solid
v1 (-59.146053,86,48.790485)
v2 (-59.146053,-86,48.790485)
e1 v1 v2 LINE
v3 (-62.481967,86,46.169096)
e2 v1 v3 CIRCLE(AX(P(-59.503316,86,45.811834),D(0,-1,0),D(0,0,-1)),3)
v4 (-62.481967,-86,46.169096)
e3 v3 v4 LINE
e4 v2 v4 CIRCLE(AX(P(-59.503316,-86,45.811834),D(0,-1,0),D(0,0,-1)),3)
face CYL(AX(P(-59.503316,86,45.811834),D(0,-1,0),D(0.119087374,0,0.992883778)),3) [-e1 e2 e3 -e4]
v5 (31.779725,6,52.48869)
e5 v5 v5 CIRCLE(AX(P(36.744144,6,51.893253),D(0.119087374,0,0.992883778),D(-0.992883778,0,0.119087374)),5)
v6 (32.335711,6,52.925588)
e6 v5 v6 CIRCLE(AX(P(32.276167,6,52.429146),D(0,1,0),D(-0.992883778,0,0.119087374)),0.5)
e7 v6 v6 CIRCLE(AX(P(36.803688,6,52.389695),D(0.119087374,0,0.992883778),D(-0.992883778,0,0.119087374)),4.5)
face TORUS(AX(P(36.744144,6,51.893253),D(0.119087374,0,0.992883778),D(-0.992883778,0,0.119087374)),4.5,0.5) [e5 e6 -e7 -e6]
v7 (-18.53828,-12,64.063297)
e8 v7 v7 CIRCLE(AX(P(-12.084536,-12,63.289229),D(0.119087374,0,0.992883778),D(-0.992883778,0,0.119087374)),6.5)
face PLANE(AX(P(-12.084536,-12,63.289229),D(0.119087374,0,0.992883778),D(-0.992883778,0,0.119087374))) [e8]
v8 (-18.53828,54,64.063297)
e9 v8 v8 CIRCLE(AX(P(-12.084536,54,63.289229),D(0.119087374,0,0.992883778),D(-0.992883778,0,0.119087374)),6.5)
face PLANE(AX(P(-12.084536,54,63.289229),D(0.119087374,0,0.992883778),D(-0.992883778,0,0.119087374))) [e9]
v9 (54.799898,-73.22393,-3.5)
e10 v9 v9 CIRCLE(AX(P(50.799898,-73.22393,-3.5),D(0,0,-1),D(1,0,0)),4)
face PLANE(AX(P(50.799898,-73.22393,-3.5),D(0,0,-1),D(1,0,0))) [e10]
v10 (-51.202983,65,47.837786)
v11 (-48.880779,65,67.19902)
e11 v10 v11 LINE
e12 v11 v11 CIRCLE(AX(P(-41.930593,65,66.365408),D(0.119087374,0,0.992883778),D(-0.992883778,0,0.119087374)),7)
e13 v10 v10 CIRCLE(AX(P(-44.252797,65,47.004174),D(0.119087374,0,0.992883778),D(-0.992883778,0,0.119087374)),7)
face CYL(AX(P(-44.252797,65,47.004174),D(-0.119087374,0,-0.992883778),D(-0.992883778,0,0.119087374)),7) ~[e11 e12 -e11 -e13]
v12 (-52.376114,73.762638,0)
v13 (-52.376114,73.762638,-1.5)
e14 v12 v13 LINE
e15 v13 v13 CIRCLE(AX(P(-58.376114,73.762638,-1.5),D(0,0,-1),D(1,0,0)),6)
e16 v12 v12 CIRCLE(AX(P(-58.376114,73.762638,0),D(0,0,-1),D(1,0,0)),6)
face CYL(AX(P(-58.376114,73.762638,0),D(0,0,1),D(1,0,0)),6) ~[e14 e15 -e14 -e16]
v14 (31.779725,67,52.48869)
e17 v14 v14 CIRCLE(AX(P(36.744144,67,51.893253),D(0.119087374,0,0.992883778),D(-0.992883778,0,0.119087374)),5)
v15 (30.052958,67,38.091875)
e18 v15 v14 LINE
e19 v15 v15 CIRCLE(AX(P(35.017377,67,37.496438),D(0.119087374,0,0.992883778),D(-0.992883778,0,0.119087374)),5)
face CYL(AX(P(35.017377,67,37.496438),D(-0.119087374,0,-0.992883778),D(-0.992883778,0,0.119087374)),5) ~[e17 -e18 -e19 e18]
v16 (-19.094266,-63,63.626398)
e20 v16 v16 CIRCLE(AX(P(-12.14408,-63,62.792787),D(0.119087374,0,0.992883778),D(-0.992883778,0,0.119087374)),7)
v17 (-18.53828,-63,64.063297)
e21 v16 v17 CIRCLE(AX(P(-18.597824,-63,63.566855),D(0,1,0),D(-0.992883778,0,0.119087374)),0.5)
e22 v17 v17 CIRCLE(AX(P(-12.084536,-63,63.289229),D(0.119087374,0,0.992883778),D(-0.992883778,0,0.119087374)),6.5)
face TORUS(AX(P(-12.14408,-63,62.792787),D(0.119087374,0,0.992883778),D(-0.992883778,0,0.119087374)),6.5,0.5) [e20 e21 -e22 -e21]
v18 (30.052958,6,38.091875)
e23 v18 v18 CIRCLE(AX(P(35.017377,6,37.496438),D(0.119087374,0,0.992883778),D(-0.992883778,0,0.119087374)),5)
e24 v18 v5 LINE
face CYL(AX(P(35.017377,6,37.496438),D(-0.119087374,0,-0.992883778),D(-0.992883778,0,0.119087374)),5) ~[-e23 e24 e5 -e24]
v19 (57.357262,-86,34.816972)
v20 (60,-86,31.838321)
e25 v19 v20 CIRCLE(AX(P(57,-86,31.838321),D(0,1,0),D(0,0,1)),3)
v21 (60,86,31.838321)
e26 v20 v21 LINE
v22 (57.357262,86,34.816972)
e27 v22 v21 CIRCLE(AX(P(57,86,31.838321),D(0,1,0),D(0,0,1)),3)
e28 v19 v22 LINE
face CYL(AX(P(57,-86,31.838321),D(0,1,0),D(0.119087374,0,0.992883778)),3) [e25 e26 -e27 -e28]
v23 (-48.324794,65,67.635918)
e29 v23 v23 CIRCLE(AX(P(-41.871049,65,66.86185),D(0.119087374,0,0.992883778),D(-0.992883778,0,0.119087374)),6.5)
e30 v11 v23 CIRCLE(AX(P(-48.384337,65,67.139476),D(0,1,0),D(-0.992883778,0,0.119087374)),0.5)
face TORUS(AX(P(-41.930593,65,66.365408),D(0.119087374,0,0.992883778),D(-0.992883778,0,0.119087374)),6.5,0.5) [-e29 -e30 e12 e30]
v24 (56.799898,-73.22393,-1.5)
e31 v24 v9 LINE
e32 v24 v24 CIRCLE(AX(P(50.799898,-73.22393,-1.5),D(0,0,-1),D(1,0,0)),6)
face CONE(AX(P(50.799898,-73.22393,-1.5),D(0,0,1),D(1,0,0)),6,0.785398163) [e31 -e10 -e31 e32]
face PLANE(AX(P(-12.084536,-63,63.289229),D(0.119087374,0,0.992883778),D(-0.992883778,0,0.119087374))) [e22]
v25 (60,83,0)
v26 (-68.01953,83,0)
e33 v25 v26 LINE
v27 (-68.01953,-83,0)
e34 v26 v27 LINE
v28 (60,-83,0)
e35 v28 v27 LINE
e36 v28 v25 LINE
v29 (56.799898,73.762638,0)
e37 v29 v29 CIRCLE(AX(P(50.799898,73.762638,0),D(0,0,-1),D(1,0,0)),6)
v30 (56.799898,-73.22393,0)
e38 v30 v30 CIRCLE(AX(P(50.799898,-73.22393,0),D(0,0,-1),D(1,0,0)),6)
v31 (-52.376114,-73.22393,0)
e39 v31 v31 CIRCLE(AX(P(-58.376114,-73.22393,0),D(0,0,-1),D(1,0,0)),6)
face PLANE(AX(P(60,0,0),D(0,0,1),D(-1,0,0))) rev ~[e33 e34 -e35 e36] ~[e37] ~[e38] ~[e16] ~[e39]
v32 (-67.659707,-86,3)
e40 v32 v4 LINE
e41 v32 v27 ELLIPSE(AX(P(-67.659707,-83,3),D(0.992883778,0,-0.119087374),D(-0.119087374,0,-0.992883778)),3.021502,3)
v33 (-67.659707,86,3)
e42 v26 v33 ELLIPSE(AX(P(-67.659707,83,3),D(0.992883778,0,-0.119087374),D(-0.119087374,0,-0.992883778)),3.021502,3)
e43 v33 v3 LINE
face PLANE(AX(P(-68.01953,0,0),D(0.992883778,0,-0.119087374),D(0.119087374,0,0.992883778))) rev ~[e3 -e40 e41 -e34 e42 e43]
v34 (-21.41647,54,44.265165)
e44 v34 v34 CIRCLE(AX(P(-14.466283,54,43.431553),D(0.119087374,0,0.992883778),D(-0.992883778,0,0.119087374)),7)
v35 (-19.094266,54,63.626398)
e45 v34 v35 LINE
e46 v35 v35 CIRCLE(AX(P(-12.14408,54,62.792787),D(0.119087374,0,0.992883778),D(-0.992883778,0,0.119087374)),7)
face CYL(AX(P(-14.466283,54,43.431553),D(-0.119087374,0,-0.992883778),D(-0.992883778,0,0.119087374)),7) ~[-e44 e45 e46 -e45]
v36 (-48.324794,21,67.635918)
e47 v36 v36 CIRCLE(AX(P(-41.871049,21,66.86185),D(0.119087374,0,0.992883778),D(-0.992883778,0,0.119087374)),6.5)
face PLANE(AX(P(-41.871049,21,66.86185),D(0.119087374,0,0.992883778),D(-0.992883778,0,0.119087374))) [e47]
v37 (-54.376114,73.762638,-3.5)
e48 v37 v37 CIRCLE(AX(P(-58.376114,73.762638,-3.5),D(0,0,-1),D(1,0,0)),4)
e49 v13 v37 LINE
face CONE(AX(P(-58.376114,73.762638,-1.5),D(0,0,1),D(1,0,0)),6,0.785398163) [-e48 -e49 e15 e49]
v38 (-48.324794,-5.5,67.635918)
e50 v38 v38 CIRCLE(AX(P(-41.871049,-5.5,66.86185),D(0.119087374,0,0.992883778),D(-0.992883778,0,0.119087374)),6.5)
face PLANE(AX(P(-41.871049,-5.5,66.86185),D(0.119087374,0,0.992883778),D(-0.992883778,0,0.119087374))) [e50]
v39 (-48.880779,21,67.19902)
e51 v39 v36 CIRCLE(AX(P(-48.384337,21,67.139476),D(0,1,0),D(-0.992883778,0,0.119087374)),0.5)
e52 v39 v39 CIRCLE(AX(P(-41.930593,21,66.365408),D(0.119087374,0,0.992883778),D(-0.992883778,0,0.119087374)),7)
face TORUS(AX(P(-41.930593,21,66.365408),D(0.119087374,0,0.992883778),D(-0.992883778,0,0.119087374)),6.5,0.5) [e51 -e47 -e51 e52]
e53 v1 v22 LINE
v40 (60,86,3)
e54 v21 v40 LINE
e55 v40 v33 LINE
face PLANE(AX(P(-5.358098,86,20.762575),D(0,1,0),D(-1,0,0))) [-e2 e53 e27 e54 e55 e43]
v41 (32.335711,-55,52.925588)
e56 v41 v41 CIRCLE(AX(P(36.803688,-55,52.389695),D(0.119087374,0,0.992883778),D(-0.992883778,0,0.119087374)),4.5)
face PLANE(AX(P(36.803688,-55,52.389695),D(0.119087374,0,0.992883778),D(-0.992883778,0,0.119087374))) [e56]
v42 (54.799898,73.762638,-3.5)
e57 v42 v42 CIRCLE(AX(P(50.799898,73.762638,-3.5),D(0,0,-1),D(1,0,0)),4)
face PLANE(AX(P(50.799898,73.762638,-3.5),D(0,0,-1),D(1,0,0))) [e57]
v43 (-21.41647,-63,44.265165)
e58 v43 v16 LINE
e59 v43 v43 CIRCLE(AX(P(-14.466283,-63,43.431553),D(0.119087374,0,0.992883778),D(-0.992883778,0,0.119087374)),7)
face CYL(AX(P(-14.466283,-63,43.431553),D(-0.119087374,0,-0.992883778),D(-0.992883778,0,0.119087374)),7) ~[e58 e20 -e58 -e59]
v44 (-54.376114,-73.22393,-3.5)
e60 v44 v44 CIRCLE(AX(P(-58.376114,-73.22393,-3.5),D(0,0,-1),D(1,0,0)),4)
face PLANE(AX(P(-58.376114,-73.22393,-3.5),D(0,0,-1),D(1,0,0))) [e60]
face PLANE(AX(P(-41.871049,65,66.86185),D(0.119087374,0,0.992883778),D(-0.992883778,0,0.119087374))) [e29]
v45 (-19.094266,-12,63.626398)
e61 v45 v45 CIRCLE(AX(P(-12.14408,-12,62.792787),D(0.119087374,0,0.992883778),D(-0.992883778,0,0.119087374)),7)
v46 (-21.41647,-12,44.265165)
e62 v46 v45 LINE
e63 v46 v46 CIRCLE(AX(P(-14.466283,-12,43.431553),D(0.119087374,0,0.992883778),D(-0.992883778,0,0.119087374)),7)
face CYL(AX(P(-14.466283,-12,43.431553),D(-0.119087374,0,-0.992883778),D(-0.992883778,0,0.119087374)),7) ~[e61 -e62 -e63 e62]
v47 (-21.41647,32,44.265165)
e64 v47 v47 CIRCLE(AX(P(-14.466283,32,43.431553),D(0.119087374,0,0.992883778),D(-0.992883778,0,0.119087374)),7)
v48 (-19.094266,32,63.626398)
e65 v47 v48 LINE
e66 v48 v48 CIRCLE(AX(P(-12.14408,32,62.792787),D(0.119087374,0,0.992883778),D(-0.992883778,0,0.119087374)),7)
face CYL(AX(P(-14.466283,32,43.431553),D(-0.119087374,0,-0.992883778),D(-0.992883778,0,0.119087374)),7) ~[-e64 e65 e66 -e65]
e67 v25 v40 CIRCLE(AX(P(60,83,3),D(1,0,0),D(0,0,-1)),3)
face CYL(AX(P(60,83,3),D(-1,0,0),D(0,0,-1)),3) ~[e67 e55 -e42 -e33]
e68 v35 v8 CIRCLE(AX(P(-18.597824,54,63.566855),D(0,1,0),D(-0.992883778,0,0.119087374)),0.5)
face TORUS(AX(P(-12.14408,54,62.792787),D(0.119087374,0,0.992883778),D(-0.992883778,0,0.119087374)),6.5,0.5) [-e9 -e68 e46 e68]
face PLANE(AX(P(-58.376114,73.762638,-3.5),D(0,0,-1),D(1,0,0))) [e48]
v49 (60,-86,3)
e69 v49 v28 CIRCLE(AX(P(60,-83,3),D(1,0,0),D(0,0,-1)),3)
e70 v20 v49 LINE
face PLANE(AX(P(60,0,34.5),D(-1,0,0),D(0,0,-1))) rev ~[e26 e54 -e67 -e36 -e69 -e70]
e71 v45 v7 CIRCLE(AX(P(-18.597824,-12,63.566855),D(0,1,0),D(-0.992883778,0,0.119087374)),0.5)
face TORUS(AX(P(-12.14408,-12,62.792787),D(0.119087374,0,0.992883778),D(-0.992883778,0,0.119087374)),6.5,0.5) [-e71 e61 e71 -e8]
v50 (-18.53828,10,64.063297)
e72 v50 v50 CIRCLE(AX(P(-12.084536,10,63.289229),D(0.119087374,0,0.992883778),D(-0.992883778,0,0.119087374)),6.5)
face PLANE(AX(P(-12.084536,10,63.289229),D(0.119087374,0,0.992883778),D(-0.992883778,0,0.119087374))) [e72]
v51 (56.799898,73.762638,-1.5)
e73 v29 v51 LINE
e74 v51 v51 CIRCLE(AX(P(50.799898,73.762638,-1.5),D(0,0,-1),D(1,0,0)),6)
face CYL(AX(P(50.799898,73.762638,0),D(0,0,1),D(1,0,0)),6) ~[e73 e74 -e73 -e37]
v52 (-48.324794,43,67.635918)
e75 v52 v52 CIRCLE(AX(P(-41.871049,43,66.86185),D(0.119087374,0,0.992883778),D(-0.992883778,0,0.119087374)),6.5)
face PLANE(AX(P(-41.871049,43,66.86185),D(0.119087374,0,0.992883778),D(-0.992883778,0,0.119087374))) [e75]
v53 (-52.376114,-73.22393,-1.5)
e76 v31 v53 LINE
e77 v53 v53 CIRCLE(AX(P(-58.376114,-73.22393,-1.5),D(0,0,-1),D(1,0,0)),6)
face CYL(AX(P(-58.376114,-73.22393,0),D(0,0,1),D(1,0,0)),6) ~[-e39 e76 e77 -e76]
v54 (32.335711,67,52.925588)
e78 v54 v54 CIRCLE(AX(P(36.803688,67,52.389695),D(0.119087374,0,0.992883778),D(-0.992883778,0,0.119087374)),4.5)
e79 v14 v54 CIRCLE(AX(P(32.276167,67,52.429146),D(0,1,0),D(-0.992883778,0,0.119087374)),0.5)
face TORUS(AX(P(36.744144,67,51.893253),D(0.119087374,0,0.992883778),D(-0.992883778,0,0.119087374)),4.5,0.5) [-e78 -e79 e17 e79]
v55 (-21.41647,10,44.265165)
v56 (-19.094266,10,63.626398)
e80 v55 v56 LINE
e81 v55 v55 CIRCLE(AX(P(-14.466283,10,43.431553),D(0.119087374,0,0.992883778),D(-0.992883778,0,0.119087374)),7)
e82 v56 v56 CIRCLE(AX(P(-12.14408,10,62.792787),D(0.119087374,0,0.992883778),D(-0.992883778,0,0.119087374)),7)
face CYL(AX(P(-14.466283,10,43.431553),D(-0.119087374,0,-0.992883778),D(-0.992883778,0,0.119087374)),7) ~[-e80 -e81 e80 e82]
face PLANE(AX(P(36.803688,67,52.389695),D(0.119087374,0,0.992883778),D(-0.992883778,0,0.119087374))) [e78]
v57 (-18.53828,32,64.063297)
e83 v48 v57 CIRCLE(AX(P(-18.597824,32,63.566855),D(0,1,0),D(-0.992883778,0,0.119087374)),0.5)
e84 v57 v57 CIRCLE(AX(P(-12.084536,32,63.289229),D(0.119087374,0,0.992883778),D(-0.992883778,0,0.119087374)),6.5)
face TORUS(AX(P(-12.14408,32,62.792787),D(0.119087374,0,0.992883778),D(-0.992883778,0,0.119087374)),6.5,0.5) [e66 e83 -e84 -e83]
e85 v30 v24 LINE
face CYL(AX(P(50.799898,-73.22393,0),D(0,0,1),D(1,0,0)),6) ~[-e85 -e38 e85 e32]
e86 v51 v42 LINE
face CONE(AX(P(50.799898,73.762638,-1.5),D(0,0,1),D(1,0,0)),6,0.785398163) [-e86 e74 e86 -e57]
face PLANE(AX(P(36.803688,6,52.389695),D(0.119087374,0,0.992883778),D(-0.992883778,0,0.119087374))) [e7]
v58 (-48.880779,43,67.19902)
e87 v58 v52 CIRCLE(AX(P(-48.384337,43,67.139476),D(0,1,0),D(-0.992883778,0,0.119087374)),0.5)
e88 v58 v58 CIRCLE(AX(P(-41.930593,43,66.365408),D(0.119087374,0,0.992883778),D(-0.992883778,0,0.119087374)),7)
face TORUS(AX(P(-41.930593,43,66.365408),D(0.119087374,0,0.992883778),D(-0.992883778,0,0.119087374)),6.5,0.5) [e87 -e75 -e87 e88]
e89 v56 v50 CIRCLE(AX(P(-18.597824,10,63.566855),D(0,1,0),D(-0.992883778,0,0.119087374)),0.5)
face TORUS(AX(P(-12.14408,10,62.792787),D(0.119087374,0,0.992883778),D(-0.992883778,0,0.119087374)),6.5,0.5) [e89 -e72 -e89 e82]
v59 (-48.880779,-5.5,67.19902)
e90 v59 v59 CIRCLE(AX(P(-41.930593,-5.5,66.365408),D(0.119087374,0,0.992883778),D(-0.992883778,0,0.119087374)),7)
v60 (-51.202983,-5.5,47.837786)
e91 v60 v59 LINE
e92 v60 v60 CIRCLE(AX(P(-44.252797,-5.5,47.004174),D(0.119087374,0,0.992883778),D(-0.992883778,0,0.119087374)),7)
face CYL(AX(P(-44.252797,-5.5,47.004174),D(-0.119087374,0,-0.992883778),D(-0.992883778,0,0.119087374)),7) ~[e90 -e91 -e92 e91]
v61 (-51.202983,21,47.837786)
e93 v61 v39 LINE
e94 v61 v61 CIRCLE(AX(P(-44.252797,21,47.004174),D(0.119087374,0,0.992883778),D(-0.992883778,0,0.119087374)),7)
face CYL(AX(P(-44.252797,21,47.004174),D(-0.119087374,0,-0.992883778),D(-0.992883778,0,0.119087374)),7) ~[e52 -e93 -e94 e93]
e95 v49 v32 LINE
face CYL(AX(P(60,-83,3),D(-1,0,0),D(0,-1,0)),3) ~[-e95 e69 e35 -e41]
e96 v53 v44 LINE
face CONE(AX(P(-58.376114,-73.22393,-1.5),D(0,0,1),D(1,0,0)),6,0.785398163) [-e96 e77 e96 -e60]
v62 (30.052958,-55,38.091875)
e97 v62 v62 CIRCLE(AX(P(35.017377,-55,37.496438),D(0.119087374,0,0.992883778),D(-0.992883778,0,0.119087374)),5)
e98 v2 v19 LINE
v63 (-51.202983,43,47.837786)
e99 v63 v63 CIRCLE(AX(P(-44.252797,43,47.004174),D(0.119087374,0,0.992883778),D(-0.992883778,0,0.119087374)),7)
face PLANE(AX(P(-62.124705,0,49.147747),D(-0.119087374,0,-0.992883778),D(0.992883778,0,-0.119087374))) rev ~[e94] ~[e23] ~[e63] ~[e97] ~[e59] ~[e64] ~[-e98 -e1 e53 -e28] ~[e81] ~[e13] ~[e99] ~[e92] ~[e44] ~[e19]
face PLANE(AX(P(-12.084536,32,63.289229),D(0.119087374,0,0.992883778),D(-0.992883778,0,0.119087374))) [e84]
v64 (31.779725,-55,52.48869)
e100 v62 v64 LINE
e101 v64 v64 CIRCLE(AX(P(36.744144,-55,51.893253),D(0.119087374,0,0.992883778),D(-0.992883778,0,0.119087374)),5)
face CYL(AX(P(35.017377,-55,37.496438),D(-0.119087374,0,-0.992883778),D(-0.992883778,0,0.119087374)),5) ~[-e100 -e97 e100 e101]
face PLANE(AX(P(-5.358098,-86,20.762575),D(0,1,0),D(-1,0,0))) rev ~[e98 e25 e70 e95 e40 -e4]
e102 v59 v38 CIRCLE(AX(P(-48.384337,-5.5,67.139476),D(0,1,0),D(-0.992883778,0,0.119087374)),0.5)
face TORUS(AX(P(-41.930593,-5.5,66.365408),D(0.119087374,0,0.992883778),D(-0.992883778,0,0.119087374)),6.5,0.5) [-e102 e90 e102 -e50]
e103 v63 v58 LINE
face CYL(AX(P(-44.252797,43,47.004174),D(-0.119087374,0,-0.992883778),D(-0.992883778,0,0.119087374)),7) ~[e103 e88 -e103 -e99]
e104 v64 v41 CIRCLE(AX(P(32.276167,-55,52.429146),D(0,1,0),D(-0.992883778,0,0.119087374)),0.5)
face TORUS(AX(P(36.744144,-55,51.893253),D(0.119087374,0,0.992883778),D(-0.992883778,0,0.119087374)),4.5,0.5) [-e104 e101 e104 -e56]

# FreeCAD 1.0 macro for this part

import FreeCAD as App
import Part
import Sketcher

V = App.Vector
Q = App.Units.Quantity


def edges_at(feature, points):
    """Names of the edges that pass closest to the given points."""
    edges = feature.Shape.Edges
    near = lambda p: min(range(len(edges)), key=lambda i: edges[i].distToShape(Part.Vertex(*p))[0])
    return sorted({f"Edge{near(p) + 1}" for p in points})

doc = App.newDocument("Part")
body = doc.addObject("PartDesign::Body", "Body")

# Sketch on XZ plane
sketch1 = body.newObject("Sketcher::SketchObject", "Sketch")
sketch1.AttachmentSupport = (doc.getObject("XZ_Plane"), [""])
sketch1.MapMode = "FlatFace"
sketch1.addGeometry([
    Part.LineSegment(V(60, 34, 0), V(-62, 49, 0)),
    Part.LineSegment(V(-62, 49, 0), V(-68, 0, 0)),
    Part.LineSegment(V(-68, 0, 0), V(60, 0, 0)),
    Part.LineSegment(V(60, 0, 0), V(60, 34, 0)),
], False)
sketch1.addConstraint([
    Sketcher.Constraint("Coincident", 0, 2, 1, 1),
    Sketcher.Constraint("Coincident", 1, 2, 2, 1),
    Sketcher.Constraint("Coincident", 2, 2, 3, 1),
    Sketcher.Constraint("Coincident", 3, 2, 0, 1),
    Sketcher.Constraint("Horizontal", 2),
    Sketcher.Constraint("Vertical", 3),
    Sketcher.Constraint("PointOnObject", 1, 2, -1),
    Sketcher.Constraint("Perpendicular", 0, 1),
    Sketcher.Constraint("Distance", 0, Q("123 mm")),
    Sketcher.Constraint("DistanceY", 3, 1, 3, 2, Q("34.5 mm")),
    Sketcher.Constraint("DistanceX", -1, 1, 2, 2, Q("60 mm")),
    Sketcher.Constraint("Distance", 1, Q("49.5 mm")),
])
pad1 = body.newObject("PartDesign::Pad", "Pad")
pad1.Profile = sketch1
pad1.Length = 172
pad1.Midplane = True
doc.recompute()

fillet = body.newObject("PartDesign::Fillet", "Fillet")
fillet.Base = (pad1, edges_at(pad1, [
    (60, 0, 34.5),
    (-62.125, 0, 49.148),
    (-4.01, -86, 0),
    (-4.01, 86, 0),
]))
fillet.Radius = 3

# Sketch on XY plane
sketch2 = body.newObject("Sketcher::SketchObject", "Sketch001")
sketch2.AttachmentSupport = (doc.getObject("XY_Plane"), [""])
sketch2.MapMode = "FlatFace"
sketch2.addGeometry([
    Part.Circle(V(-58, -73, 0), V(0, 0, 1), 6),
    Part.Circle(V(51, -73, 0), V(0, 0, 1), 6),
    Part.Circle(V(-58, 74, 0), V(0, 0, 1), 6),
    Part.Circle(V(51, 74, 0), V(0, 0, 1), 6),
], False)
sketch2.addConstraint([
    Sketcher.Constraint("Equal", 0, 1),
    Sketcher.Constraint("Equal", 1, 2),
    Sketcher.Constraint("Equal", 2, 3),
    Sketcher.Constraint("Horizontal", 0, 3, 1, 3),
    Sketcher.Constraint("Horizontal", 2, 3, 3, 3),
    Sketcher.Constraint("Vertical", 0, 3, 2, 3),
    Sketcher.Constraint("Vertical", 1, 3, 3, 3),
    Sketcher.Constraint("Diameter", 0, Q("12 mm")),
    Sketcher.Constraint("DistanceY", 0, 3, -1, 1, Q("73.22393 mm")),
    Sketcher.Constraint("DistanceX", 0, 3, 1, 3, Q("109.176012 mm")),
    Sketcher.Constraint("DistanceX", 0, 3, -1, 1, Q("58.376114 mm")),
    Sketcher.Constraint("DistanceY", -1, 1, 2, 3, Q("73.762638 mm")),
])
pad2 = body.newObject("PartDesign::Pad", "Pad001")
pad2.Profile = sketch2
pad2.Length = 3.5
pad2.Reversed = True
doc.recompute()

chamfer = body.newObject("PartDesign::Chamfer", "Chamfer")
chamfer.Base = (pad2, edges_at(pad2, [
    (-64.376, -73.224, -3.5),
    (44.8, -73.224, -3.5),
    (44.8, 73.763, -3.5),
    (-64.376, 73.763, -3.5),
]))
chamfer.Size = 2

# Sketch on an angled plane
sketch3 = body.newObject("Sketcher::SketchObject", "Sketch002")
sketch3.Placement = App.Placement(V(4.930185, 0, 41.105123), App.Rotation(V(-0.992883778, 0, 0.119087374), V(0, -0.999999999, 0), V(0.119087374, 0, 0.992883778), "ZXY"))
sketch3.addGeometry([
    Part.Circle(V(50, 5, 0), V(0, 0, 1), 7),  # 0
    Part.Circle(V(50, -21, 0), V(0, 0, 1), 7),  # 1
    Part.Circle(V(50, -43, 0), V(0, 0, 1), 7),  # 2
    Part.Circle(V(50, -65, 0), V(0, 0, 1), 7),  # 3
    Part.Circle(V(20, 12, 0), V(0, 0, 1), 7),  # 4
    Part.Circle(V(20, -10, 0), V(0, 0, 1), 7),  # 5
    Part.Circle(V(20, -32, 0), V(0, 0, 1), 7),  # 6
    Part.Circle(V(20, -54, 0), V(0, 0, 1), 7),  # 7
    Part.Circle(V(20, 63, 0), V(0, 0, 1), 7),  # 8
], False)
sketch3.addConstraint([
    Sketcher.Constraint("Equal", 0, 1),
    Sketcher.Constraint("Equal", 1, 2),
    Sketcher.Constraint("Equal", 2, 3),
    Sketcher.Constraint("Equal", 3, 4),
    Sketcher.Constraint("Equal", 4, 5),
    Sketcher.Constraint("Equal", 5, 6),
    Sketcher.Constraint("Equal", 6, 7),
    Sketcher.Constraint("Equal", 7, 8),
    Sketcher.Constraint("Vertical", 0, 3, 1, 3),
    Sketcher.Constraint("Vertical", 1, 3, 2, 3),
    Sketcher.Constraint("Vertical", 2, 3, 3, 3),
    Sketcher.Constraint("Vertical", 4, 3, 5, 3),
    Sketcher.Constraint("Vertical", 5, 3, 6, 3),
    Sketcher.Constraint("Vertical", 6, 3, 7, 3),
    Sketcher.Constraint("Vertical", 7, 3, 8, 3),
    Sketcher.Constraint("Diameter", 0, Q("14 mm")),
    Sketcher.Constraint("DistanceY", 1, 3, -1, 1, Q("21 mm")),
    Sketcher.Constraint("DistanceY", 2, 3, -1, 1, Q("43 mm")),
    Sketcher.Constraint("DistanceY", 3, 3, -1, 1, Q("65 mm")),
    Sketcher.Constraint("DistanceY", -1, 1, 4, 3, Q("12 mm")),
    Sketcher.Constraint("DistanceY", 5, 3, -1, 1, Q("10 mm")),
    Sketcher.Constraint("DistanceY", 6, 3, -1, 1, Q("32 mm")),
    Sketcher.Constraint("DistanceY", 7, 3, -1, 1, Q("54 mm")),
    Sketcher.Constraint("DistanceY", -1, 1, 8, 3, Q("63 mm")),
    Sketcher.Constraint("DistanceX", 4, 3, 0, 3, Q("30 mm")),
    Sketcher.Constraint("DistanceY", -1, 1, 0, 3, Q("5.5 mm")),
    Sketcher.Constraint("DistanceX", -1, 1, 0, 3, Q("49.535488 mm")),
])
pad3 = body.newObject("PartDesign::Pad", "Pad002")
pad3.Profile = sketch3
pad3.Length = 20

# Sketch on an angled plane
sketch4 = body.newObject("Sketcher::SketchObject", "Sketch003")
sketch4.Placement = App.Placement(V(4.930185, 0, 41.105123), App.Rotation(V(-0.992883778, 0, 0.119087374), V(0, -0.999999999, 0), V(0.119087374, 0, 0.992883778), "ZXY"))
sketch4.addGeometry([
    Part.Circle(V(-30, 55, 0), V(0, 0, 1), 5),
    Part.Circle(V(-30, -6, 0), V(0, 0, 1), 5),
    Part.Circle(V(-30, -67, 0), V(0, 0, 1), 5),
], False)
sketch4.addConstraint([
    Sketcher.Constraint("Equal", 0, 1),
    Sketcher.Constraint("Equal", 1, 2),
    Sketcher.Constraint("Vertical", 0, 3, 1, 3),
    Sketcher.Constraint("Vertical", 1, 3, 2, 3),
    Sketcher.Constraint("Diameter", 0, Q("10 mm")),
    Sketcher.Constraint("DistanceY", -1, 1, 0, 3, Q("55 mm")),
    Sketcher.Constraint("DistanceY", 1, 3, -1, 1, Q("6 mm")),
    Sketcher.Constraint("DistanceY", 2, 3, -1, 1, Q("67 mm")),
    Sketcher.Constraint("DistanceX", 0, 3, -1, 1, Q("30.302833 mm")),
])
pad4 = body.newObject("PartDesign::Pad", "Pad003")
pad4.Profile = sketch4
pad4.Length = 15
doc.recompute()

fillet2 = body.newObject("PartDesign::Fillet", "Fillet001")
fillet2.Base = (pad4, edges_at(pad4, [
    (-5.134, -12, 62.456),
    (-5.134, -63, 62.456),
    (-34.921, -5.5, 66.028),
    (-34.921, 21, 66.028),
    (-34.921, 43, 66.028),
    (-34.921, 65, 66.028),
    (-5.134, 54, 62.456),
    (-5.134, 32, 62.456),
    (-5.134, 10, 62.456),
    (41.768, -55, 51.794),
    (41.768, 6, 51.794),
    (41.768, 67, 51.794),
]))
fillet2.Radius = 0.5

doc.recompute()
